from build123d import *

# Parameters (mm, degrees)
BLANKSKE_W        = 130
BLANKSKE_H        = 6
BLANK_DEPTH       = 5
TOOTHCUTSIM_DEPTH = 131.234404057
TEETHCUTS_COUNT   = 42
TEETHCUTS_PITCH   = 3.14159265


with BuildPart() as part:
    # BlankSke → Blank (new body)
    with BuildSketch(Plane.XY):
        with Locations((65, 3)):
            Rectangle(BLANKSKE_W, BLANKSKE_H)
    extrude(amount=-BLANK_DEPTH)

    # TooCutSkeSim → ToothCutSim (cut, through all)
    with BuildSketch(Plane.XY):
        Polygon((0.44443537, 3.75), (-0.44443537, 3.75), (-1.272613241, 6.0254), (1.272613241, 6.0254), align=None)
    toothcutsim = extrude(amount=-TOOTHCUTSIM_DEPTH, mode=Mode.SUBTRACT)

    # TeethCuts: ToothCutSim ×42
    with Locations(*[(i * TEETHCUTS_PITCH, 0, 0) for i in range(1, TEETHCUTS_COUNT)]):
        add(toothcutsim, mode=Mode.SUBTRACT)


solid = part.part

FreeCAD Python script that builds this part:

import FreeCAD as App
import Part
import Sketcher

V = App.Vector
Q = App.Units.Quantity


def add_polygon(sketch, points):
    """Adds a closed chain of lines whose ends are joined by coincident constraints."""
    first, n = sketch.GeometryCount, len(points)
    for a, b in zip(points, points[1:] + points[:1]):
        sketch.addGeometry(Part.LineSegment(App.Vector(*a, 0), App.Vector(*b, 0)), False)
    for i in range(n):
        sketch.addConstraint(Sketcher.Constraint("Coincident", first + i, 2, first + (i + 1) % n, 1))

doc = App.newDocument("Part")
body = doc.addObject("PartDesign::Body", "Body")

sketch1 = doc.addObject("Sketcher::SketchObject", "Sketch")
body.addObject(sketch1)
sketch1.AttachmentSupport = (doc.XY_Plane, [""])
sketch1.MapMode = "FlatFace"
add_polygon(sketch1, [(0, 6), (0, 0), (130, 0), (130, 6)])
sketch1.addConstraint(Sketcher.Constraint("Vertical", 0))
sketch1.addConstraint(Sketcher.Constraint("Horizontal", 1))
sketch1.addConstraint(Sketcher.Constraint("Vertical", 2))
sketch1.addConstraint(Sketcher.Constraint("Horizontal", 3))
sketch1.addConstraint(Sketcher.Constraint("Coincident", 0, 2, -1, 1))
sketch1.addConstraint(Sketcher.Constraint("DistanceX", 1, 1, 1, 2, Q("130 mm")))
sketch1.addConstraint(Sketcher.Constraint("DistanceY", 0, 2, 0, 1, Q("6 mm")))
pad1 = doc.addObject("PartDesign::Pad", "Pad")
body.addObject(pad1)
pad1.Profile = sketch1
pad1.Length = 5
pad1.Reversed = True

sketch2 = doc.addObject("Sketcher::SketchObject", "Sketch001")
body.addObject(sketch2)
sketch2.AttachmentSupport = (doc.XY_Plane, [""])
sketch2.MapMode = "FlatFace"
add_polygon(sketch2, [(-0.4, 3.8), (0.4, 3.8), (1.3, 6), (-1.3, 6)])
sketch2.addConstraint(Sketcher.Constraint("Horizontal", 0))
sketch2.addConstraint(Sketcher.Constraint("Horizontal", 2))
sketch2.addConstraint(Sketcher.Constraint("Equal", 1, 3))
sketch2.addConstraint(Sketcher.Constraint("Angle", 1, Q("70 deg")))
sketch2.addConstraint(Sketcher.Constraint("DistanceY", -1, 1, 0, 2, Q("3.75 mm")))
sketch2.addConstraint(Sketcher.Constraint("DistanceX", 0, 1, 0, 2, Q("0.888871 mm")))
sketch2.addConstraint(Sketcher.Constraint("DistanceY", -1, 1, 1, 2, Q("6.0254 mm")))
sketch2.addConstraint(Sketcher.Constraint("DistanceX", -1, 1, 0, 2, Q("0.444435 mm")))
pocket1 = doc.addObject("PartDesign::Pocket", "Pocket")
body.addObject(pocket1)
pocket1.Profile = sketch2
pocket1.Type = "ThroughAll"
doc.recompute()

linearpattern = doc.addObject("PartDesign::LinearPattern", "LinearPattern")
body.addObject(linearpattern)
linearpattern.Originals = [pocket1]
linearpattern.Direction = (doc.X_Axis, [""])
linearpattern.Mode = "offset"
linearpattern.Offset = 3.141593
linearpattern.Occurrences = 42
body.Tip = linearpattern

doc.recompute()
